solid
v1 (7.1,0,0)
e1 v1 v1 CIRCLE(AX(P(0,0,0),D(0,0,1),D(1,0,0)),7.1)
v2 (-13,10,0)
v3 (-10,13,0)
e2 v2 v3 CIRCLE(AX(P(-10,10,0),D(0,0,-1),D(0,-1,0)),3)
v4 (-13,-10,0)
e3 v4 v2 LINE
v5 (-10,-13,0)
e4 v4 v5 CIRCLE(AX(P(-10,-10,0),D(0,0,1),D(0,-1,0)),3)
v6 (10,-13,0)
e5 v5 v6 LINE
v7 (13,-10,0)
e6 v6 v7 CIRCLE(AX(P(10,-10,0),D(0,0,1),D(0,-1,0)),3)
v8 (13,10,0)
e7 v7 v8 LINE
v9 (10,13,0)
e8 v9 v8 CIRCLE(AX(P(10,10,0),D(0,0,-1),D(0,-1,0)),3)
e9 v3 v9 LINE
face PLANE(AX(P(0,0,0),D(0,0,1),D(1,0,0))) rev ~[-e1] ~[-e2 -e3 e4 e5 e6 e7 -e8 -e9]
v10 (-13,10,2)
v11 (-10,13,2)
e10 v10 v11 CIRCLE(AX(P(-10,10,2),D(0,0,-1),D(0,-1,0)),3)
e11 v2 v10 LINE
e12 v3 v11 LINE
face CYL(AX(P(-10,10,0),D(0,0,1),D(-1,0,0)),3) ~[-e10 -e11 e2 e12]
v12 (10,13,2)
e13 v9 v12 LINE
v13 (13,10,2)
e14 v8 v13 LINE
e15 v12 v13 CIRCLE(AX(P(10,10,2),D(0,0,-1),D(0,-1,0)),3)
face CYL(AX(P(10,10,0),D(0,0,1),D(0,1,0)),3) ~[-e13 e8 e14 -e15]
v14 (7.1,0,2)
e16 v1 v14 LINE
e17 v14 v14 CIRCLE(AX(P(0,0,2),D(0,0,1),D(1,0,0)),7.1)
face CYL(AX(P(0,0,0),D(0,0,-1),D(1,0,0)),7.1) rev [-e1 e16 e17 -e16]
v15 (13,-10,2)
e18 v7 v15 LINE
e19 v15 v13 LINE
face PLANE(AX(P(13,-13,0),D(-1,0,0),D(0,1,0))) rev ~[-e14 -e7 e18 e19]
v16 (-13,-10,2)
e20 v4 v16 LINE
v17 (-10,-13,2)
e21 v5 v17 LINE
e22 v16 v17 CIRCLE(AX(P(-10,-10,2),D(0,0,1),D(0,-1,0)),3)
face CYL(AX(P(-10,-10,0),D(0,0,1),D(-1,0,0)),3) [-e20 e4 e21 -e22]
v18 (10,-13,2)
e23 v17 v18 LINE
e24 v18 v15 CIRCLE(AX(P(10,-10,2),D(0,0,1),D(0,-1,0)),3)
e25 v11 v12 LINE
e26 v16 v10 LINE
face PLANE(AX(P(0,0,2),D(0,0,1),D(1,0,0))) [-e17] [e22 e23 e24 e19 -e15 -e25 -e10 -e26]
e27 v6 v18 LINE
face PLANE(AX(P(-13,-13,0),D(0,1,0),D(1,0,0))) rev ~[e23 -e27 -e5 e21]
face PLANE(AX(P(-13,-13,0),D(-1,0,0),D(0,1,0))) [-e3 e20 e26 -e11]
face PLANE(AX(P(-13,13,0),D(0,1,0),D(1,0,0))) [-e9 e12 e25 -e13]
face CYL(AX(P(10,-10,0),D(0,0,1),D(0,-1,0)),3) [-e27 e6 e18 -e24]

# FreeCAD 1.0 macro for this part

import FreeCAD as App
import Part
import Sketcher

V = App.Vector
Q = App.Units.Quantity


def edges_at(feature, points):
    """Names of the edges that pass closest to the given points."""
    edges = feature.Shape.Edges
    near = lambda p: min(range(len(edges)), key=lambda i: edges[i].distToShape(Part.Vertex(*p))[0])
    return sorted({f"Edge{near(p) + 1}" for p in points})


def add_polygon(sketch, points):
    """Adds a closed chain of lines whose ends are joined by coincident constraints."""
    first, n = sketch.GeometryCount, len(points)
    for a, b in zip(points, points[1:] + points[:1]):
        sketch.addGeometry(Part.LineSegment(App.Vector(*a, 0), App.Vector(*b, 0)), False)
    for i in range(n):
        sketch.addConstraint(Sketcher.Constraint("Coincident", first + i, 2, first + (i + 1) % n, 1))

doc = App.newDocument("Part")
body = doc.addObject("PartDesign::Body", "Body")

# Sketch on XY plane
sketch1 = body.newObject("Sketcher::SketchObject", "Sketch")
sketch1.AttachmentSupport = (doc.getObject("XY_Plane"), [""])
sketch1.MapMode = "FlatFace"
add_polygon(sketch1, [(-13, 13), (-13, -13), (13, -13), (13, 13)])  # lines 0-3
sketch1.addGeometry(Part.Circle(V(0, 0, 0), V(0, 0, 1), 7), False)  # 4
sketch1.addConstraint([
    Sketcher.Constraint("Vertical", 0),
    Sketcher.Constraint("Horizontal", 1),
    Sketcher.Constraint("Vertical", 2),
    Sketcher.Constraint("Horizontal", 3),
    Sketcher.Constraint("Coincident", 4, 3, -1, 1),
    Sketcher.Constraint("Symmetric", 0, 2, 2, 2, -1, 1),
    Sketcher.Constraint("Equal", 3, 0),
    Sketcher.Constraint("Diameter", 4, Q("14.2 mm")),
    Sketcher.Constraint("DistanceX", 1, 1, 1, 2, Q("26 mm")),
])
pad1 = body.newObject("PartDesign::Pad", "Pad")
pad1.Profile = sketch1
pad1.Length = 2
doc.recompute()

fillet = body.newObject("PartDesign::Fillet", "Fillet")
fillet.Base = (pad1, edges_at(pad1, [
    (-13, -13, 1),
    (13, -13, 1),
    (13, 13, 1),
    (-13, 13, 1),
]))
fillet.Radius = 3

doc.recompute()
